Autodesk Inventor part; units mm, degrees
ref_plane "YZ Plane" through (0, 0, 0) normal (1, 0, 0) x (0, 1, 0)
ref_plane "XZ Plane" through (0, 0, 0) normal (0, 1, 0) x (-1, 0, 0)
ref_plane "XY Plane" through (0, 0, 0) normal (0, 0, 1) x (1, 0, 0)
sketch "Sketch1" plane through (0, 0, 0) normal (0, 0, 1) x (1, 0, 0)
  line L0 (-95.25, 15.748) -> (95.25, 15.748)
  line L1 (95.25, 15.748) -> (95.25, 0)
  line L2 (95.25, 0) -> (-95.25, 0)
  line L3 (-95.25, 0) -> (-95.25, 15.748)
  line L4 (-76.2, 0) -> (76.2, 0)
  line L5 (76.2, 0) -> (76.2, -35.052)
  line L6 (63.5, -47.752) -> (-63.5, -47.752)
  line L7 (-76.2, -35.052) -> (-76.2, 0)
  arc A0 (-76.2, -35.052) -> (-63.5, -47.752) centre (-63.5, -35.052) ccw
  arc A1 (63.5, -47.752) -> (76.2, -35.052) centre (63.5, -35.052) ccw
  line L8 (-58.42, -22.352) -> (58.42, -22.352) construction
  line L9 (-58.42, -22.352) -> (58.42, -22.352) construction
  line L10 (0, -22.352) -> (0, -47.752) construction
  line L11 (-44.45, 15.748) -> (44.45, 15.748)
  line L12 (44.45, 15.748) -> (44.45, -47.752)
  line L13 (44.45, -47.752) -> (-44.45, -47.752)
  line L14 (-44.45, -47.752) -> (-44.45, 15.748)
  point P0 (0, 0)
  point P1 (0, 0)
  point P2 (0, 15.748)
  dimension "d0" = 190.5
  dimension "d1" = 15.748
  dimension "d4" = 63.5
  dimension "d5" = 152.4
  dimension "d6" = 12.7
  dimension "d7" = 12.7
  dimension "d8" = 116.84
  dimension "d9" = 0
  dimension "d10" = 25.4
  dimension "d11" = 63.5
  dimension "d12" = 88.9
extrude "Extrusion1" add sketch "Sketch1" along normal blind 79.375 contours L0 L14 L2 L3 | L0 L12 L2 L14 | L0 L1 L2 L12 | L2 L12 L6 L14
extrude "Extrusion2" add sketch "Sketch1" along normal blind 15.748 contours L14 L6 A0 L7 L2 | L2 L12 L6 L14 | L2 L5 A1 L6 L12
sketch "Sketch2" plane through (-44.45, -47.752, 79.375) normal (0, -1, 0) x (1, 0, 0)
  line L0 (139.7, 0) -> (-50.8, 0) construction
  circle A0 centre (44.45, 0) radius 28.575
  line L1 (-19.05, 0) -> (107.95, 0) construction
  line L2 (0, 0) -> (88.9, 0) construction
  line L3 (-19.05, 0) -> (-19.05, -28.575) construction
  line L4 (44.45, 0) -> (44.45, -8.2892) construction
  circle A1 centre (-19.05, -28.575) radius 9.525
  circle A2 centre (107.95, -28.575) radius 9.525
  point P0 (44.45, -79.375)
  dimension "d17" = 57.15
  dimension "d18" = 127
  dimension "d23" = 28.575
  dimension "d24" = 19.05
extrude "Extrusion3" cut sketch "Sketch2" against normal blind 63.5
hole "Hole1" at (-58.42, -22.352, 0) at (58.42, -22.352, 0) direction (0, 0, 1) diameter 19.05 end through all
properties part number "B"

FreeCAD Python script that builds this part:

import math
import FreeCAD as App
import Part
import Sketcher
from FreeCAD import Vector
Q = App.Units.Quantity

doc = App.newDocument("Part")
body = doc.addObject("PartDesign::Body", "Body")

sketch1 = body.newObject("Sketcher::SketchObject", "Sketch")
sketch1.AttachmentSupport = (doc.getObject("XY_Plane"), [""])
sketch1.MapMode = "FlatFace"
sketch1.addGeometry([
    Part.LineSegment(Vector(-95, 16, 0), Vector(-95, 0, 0)),
    Part.LineSegment(Vector(-95, 0, 0), Vector(-44, 0, 0)),
    Part.LineSegment(Vector(-44, 0, 0), Vector(-44, -48, 0)),
    Part.LineSegment(Vector(-44, -48, 0), Vector(44, -48, 0)),
    Part.LineSegment(Vector(44, -48, 0), Vector(44, 0, 0)),
    Part.LineSegment(Vector(44, 0, 0), Vector(95, 0, 0)),
    Part.LineSegment(Vector(95, 0, 0), Vector(95, 16, 0)),
    Part.LineSegment(Vector(95, 16, 0), Vector(-95, 16, 0)),
], False)
sketch1.addConstraint([
    Sketcher.Constraint("Coincident", 0, 2, 1, 1),
    Sketcher.Constraint("Coincident", 1, 2, 2, 1),
    Sketcher.Constraint("Coincident", 2, 2, 3, 1),
    Sketcher.Constraint("Coincident", 3, 2, 4, 1),
    Sketcher.Constraint("Coincident", 4, 2, 5, 1),
    Sketcher.Constraint("Coincident", 5, 2, 6, 1),
    Sketcher.Constraint("Coincident", 6, 2, 7, 1),
    Sketcher.Constraint("Coincident", 7, 2, 0, 1),
    Sketcher.Constraint("Vertical", 0),
    Sketcher.Constraint("Horizontal", 1),
    Sketcher.Constraint("Vertical", 2),
    Sketcher.Constraint("Horizontal", 3),
    Sketcher.Constraint("Vertical", 4),
    Sketcher.Constraint("Horizontal", 5),
    Sketcher.Constraint("Vertical", 6),
    Sketcher.Constraint("Horizontal", 7),
    Sketcher.Constraint("Symmetric", 1, 2, 4, 2, -1, 1),
    Sketcher.Constraint("Symmetric", 0, 2, 5, 2, -2),
    Sketcher.Constraint("DistanceX", 3, 1, 3, 2, Q("3.5 in")),
    Sketcher.Constraint("DistanceX", 7, 2, 7, 1, Q("7.5 in")),
    Sketcher.Constraint("DistanceY", 0, 2, 0, 1, Q("0.62 in")),
    Sketcher.Constraint("DistanceY", 3, 2, 6, 2, Q("2.5 in")),
])
pad1 = body.newObject("PartDesign::Pad", "Pad")
pad1.Profile = sketch1
pad1.Length = Q("3.125 in")

sketch2 = body.newObject("Sketcher::SketchObject", "Sketch001")
sketch2.AttachmentSupport = (doc.getObject("XY_Plane"), [""])
sketch2.MapMode = "FlatFace"
sketch2.addGeometry([
    Part.LineSegment(Vector(-64, -48, 0), Vector(64, -48, 0)),
    Part.ArcOfCircle(Part.Circle(Vector(64, -35, 0), Vector(0, 0, 1), 13), math.radians(-90), math.radians(0)),
    Part.LineSegment(Vector(76, -35, 0), Vector(76, 0, 0)),
    Part.LineSegment(Vector(76, 0, 0), Vector(-76, 0, 0)),
    Part.LineSegment(Vector(-76, 0, 0), Vector(-76, -35, 0)),
    Part.ArcOfCircle(Part.Circle(Vector(-64, -35, 0), Vector(0, 0, 1), 13), math.radians(180), math.radians(270)),
], False)
sketch2.addConstraint([
    Sketcher.Constraint("Tangent", 0, 2, 1, 1),
    Sketcher.Constraint("Tangent", 1, 2, 2, 1),
    Sketcher.Constraint("Coincident", 2, 2, 3, 1),
    Sketcher.Constraint("Coincident", 3, 2, 4, 1),
    Sketcher.Constraint("Tangent", 4, 2, 5, 1),
    Sketcher.Constraint("Tangent", 5, 2, 0, 1),
    Sketcher.Constraint("Horizontal", 0),
    Sketcher.Constraint("Vertical", 2),
    Sketcher.Constraint("Horizontal", 3),
    Sketcher.Constraint("Vertical", 4),
    Sketcher.Constraint("Equal", 1, 5),
    Sketcher.Constraint("Symmetric", 2, 2, 3, 2, -1, 1),
    Sketcher.Constraint("Radius", 1, Q("0.5 in")),
    Sketcher.Constraint("DistanceX", 3, 2, 3, 1, Q("6 in")),
    Sketcher.Constraint("DistanceY", 2, 1, 2, 2, Q("1.38 in")),
])
pad2 = body.newObject("PartDesign::Pad", "Pad001")
pad2.Profile = sketch2
pad2.Length = Q("0.62 in")

sketch3 = body.newObject("Sketcher::SketchObject", "Sketch002")
sketch3.AttachmentSupport = (doc.getObject("XZ_Plane"), [""])
sketch3.MapMode = "FlatFace"
sketch3.AttachmentOffset = App.Placement(Vector(0, 0, 1.88 * 25.4), App.Rotation())
sketch3.addGeometry([
    Part.Circle(Vector(0, 79, 0), Vector(0, 0, 1), 29),
    Part.Circle(Vector(-64, 51, 0), Vector(0, 0, 1), 10),
    Part.Circle(Vector(64, 51, 0), Vector(0, 0, 1), 10),
], False)
sketch3.addConstraint([
    Sketcher.Constraint("Equal", 1, 2),
    Sketcher.Constraint("Symmetric", 1, 3, 2, 3, -2),
    Sketcher.Constraint("PointOnObject", 0, 3, -2),
    Sketcher.Constraint("Diameter", 0, Q("2.25 in")),
    Sketcher.Constraint("Diameter", 1, Q("0.75 in")),
    Sketcher.Constraint("DistanceX", 1, 3, 2, 3, Q("5 in")),
    Sketcher.Constraint("DistanceY", -1, 1, 1, 3, Q("2 in")),
    Sketcher.Constraint("DistanceY", 1, 3, 0, 3, Q("1.125 in")),
])
pocket1 = body.newObject("PartDesign::Pocket", "Pocket")
pocket1.Profile = sketch3
pocket1.Length = Q("2.5 in")

sketch4 = body.newObject("Sketcher::SketchObject", "Sketch003")
sketch4.AttachmentSupport = (doc.getObject("XY_Plane"), [""])
sketch4.MapMode = "FlatFace"
sketch4.addGeometry([
    Part.Circle(Vector(-58, -22, 0), Vector(0, 0, 1), 10),
    Part.Circle(Vector(58, -22, 0), Vector(0, 0, 1), 10),
], False)
sketch4.addConstraint([
    Sketcher.Constraint("Equal", 0, 1),
    Sketcher.Constraint("Symmetric", 0, 3, 1, 3, -2),
    Sketcher.Constraint("Diameter", 0, Q("0.75 in")),
    Sketcher.Constraint("DistanceX", 0, 3, -1, 1, Q("2.3 in")),
    Sketcher.Constraint("DistanceY", 0, 3, -1, 1, Q("0.88 in")),
])
doc.recompute()
hole = body.newObject("PartDesign::Hole", "Hole")
hole.Profile = sketch4
hole.ThreadType = "None"
hole.Diameter = Q("0.75 in")
hole.DepthType = "ThroughAll"
hole.Reversed = True

doc.recompute()
